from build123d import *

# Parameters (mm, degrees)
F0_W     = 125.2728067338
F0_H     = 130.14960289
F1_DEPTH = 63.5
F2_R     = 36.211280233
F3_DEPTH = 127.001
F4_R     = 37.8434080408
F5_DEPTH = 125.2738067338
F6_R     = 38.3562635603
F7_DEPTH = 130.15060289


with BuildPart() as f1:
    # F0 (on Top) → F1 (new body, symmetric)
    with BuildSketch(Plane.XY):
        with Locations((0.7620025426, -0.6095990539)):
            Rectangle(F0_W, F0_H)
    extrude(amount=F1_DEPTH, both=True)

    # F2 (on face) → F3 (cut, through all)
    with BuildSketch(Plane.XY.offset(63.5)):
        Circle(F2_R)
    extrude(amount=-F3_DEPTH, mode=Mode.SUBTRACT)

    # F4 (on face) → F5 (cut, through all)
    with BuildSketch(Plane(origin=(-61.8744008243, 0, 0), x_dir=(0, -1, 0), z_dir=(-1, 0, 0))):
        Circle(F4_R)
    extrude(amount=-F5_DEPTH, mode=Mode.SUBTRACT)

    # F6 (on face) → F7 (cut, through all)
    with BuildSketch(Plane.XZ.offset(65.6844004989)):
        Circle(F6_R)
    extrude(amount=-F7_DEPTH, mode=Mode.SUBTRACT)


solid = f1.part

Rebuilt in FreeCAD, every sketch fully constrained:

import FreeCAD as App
import Part
import Sketcher
from FreeCAD import Vector
Q = App.Units.Quantity


def add_polygon(sketch, points):
    """Adds a closed chain of lines whose ends are joined by coincident constraints."""
    first, n = sketch.GeometryCount, len(points)
    for a, b in zip(points, points[1:] + points[:1]):
        sketch.addGeometry(Part.LineSegment(App.Vector(*a, 0), App.Vector(*b, 0)), False)
    for i in range(n):
        sketch.addConstraint(Sketcher.Constraint("Coincident", first + i, 2, first + (i + 1) % n, 1))

doc = App.newDocument("Part")
body = doc.addObject("PartDesign::Body", "Body")

# Sketch on XY plane
sketch1 = body.newObject("Sketcher::SketchObject", "Sketch")
sketch1.AttachmentSupport = (doc.getObject("XY_Plane"), [""])
sketch1.MapMode = "FlatFace"
add_polygon(sketch1, [(-61.874401, 64.465202), (-61.874401, -65.6844), (63.398406, -65.6844), (63.398406, 64.465202)])  # lines 0-3
sketch1.addConstraint(Sketcher.Constraint("Vertical", 0))
sketch1.addConstraint(Sketcher.Constraint("Horizontal", 1))
sketch1.addConstraint(Sketcher.Constraint("Vertical", 2))
sketch1.addConstraint(Sketcher.Constraint("Horizontal", 3))
sketch1.addConstraint(Sketcher.Constraint("DistanceY", 0, 2, 0, 1, Q("5.1240001 in")))
sketch1.addConstraint(Sketcher.Constraint("DistanceX", 0, 2, -1, 1, Q("2.436 in")))
sketch1.addConstraint(Sketcher.Constraint("DistanceY", 0, 2, -1, 1, Q("2.586 in")))
sketch1.addConstraint(Sketcher.Constraint("DistanceX", 1, 1, 1, 2, Q("125.272807 mm")))
pad1 = body.newObject("PartDesign::Pad", "Pad")
pad1.Profile = sketch1
pad1.Length = Q("5 in")
pad1.Midplane = True

# Sketch on XY plane
sketch2 = body.newObject("Sketcher::SketchObject", "Sketch001")
sketch2.AttachmentSupport = (doc.getObject("XY_Plane"), [""])
sketch2.MapMode = "FlatFace"
sketch2.AttachmentOffset = App.Placement(Vector(0, 0, 2.5 * 25.4), App.Rotation())
sketch2.addGeometry(Part.Circle(Vector(0, 0, 0), Vector(0, 0, 1), 36.21128), False)
sketch2.addConstraint(Sketcher.Constraint("Coincident", 0, 3, -1, 1))
sketch2.addConstraint(Sketcher.Constraint("Diameter", 0, Q("72.42256 mm")))
pocket1 = body.newObject("PartDesign::Pocket", "Pocket")
pocket1.Profile = sketch2
pocket1.Type = "ThroughAll"

# Sketch on YZ plane
sketch3 = body.newObject("Sketcher::SketchObject", "Sketch002")
sketch3.AttachmentSupport = (doc.getObject("YZ_Plane"), [""])
sketch3.MapMode = "FlatFace"
sketch3.AttachmentOffset = App.Placement(Vector(0, 0, -2.436 * 25.4), App.Rotation())
sketch3.addGeometry(Part.Circle(Vector(0, 0, 0), Vector(0, 0, 1), 37.843408), False)
sketch3.addConstraint(Sketcher.Constraint("Coincident", 0, 3, -1, 1))
sketch3.addConstraint(Sketcher.Constraint("Diameter", 0, Q("75.686816 mm")))
pocket2 = body.newObject("PartDesign::Pocket", "Pocket001")
pocket2.Profile = sketch3
pocket2.Type = "ThroughAll"
pocket2.Reversed = True

# Sketch on XZ plane
sketch4 = body.newObject("Sketcher::SketchObject", "Sketch003")
sketch4.AttachmentSupport = (doc.getObject("XZ_Plane"), [""])
sketch4.MapMode = "FlatFace"
sketch4.AttachmentOffset = App.Placement(Vector(0, 0, 2.586 * 25.4), App.Rotation())
sketch4.addGeometry(Part.Circle(Vector(0, 0, 0), Vector(0, 0, 1), 38.356264), False)
sketch4.addConstraint(Sketcher.Constraint("Coincident", 0, 3, -1, 1))
sketch4.addConstraint(Sketcher.Constraint("Diameter", 0, Q("76.712527 mm")))
pocket3 = body.newObject("PartDesign::Pocket", "Pocket002")
pocket3.Profile = sketch4
pocket3.Type = "ThroughAll"

doc.recompute()
